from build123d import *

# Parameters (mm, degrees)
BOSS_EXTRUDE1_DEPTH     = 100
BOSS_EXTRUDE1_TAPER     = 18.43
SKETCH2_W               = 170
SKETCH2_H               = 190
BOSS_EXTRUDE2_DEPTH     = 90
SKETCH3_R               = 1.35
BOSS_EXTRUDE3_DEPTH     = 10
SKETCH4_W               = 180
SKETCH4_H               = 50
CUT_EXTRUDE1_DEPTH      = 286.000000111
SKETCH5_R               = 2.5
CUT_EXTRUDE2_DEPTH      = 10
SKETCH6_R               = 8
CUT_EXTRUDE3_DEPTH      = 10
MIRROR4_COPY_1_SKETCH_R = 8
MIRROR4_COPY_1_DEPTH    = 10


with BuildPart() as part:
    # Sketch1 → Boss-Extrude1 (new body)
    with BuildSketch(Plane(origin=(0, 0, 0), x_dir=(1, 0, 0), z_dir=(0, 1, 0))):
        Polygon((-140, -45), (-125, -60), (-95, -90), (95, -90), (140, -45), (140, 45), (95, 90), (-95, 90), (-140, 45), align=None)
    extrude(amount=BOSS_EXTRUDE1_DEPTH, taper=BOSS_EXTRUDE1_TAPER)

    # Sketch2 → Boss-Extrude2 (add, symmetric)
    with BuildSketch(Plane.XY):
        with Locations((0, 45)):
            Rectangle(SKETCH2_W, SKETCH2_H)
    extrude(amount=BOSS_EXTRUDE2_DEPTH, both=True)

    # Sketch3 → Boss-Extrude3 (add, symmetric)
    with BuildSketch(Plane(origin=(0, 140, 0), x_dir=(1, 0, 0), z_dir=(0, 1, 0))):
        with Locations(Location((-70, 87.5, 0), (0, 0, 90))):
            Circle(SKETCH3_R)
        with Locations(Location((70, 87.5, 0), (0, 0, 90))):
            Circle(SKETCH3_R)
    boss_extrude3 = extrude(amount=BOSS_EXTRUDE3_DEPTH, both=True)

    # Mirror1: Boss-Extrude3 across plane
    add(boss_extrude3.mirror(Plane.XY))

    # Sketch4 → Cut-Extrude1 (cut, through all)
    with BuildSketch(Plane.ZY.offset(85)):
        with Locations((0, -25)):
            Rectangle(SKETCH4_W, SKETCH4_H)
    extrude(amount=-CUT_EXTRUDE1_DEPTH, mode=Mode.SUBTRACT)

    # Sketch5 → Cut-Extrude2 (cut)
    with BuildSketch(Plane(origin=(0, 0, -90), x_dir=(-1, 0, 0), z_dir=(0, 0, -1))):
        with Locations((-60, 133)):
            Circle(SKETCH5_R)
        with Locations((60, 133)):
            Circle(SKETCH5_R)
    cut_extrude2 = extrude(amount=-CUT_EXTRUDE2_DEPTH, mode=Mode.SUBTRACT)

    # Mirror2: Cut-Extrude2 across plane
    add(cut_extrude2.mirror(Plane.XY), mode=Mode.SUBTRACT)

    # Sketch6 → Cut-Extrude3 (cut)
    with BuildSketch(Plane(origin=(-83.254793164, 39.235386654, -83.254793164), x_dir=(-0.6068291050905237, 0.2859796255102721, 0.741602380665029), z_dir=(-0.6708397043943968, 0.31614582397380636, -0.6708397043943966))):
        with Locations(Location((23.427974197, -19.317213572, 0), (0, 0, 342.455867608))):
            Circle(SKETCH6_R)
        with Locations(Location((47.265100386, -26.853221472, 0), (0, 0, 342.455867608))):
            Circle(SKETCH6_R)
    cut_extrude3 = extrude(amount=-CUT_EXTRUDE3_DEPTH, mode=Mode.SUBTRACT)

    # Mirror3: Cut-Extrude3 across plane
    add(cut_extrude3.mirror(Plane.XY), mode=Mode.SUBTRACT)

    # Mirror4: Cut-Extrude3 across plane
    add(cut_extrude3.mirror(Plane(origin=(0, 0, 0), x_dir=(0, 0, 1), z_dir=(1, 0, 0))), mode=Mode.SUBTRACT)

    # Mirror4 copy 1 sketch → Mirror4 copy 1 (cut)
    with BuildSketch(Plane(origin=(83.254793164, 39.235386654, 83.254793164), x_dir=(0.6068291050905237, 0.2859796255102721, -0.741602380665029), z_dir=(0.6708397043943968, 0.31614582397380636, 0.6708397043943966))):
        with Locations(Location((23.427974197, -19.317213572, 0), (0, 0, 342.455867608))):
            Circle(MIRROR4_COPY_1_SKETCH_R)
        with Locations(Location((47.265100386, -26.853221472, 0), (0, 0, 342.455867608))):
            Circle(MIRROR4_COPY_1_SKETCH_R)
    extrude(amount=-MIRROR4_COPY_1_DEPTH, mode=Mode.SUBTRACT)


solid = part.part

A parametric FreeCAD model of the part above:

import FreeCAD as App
import Part
import Sketcher

V = App.Vector


def add_polygon(sketch, points):
    """Adds a closed chain of lines whose ends are joined by coincident constraints."""
    first, n = sketch.GeometryCount, len(points)
    for a, b in zip(points, points[1:] + points[:1]):
        sketch.addGeometry(Part.LineSegment(App.Vector(*a, 0), App.Vector(*b, 0)), False)
    for i in range(n):
        sketch.addConstraint(Sketcher.Constraint("Coincident", first + i, 2, first + (i + 1) % n, 1))

doc = App.newDocument("Part")
body = doc.addObject("PartDesign::Body", "Body")

sketch1 = body.newObject("Sketcher::SketchObject", "Sketch")
sketch1.AttachmentSupport = (doc.getObject("XZ_Plane"), [""])
sketch1.MapMode = "FlatFace"
add_polygon(sketch1, [(-140, 45), (-95, 90), (95, 90), (140, 45), (140, -45), (95, -90), (-95, -90), (-140, -45)])
sketch1.addConstraint([
    Sketcher.Constraint("Horizontal", 1),
    Sketcher.Constraint("Vertical", 3),
    Sketcher.Constraint("Horizontal", 5),
    Sketcher.Constraint("Vertical", 7),
    Sketcher.Constraint("Symmetric", 0, 2, 4, 2, -1, 1),
    Sketcher.Constraint("Symmetric", 2, 2, 6, 2, -1, 1),
    Sketcher.Constraint("Perpendicular", 0, 2),
    Sketcher.Constraint("Perpendicular", 2, 4),
    Sketcher.Constraint("Perpendicular", 4, 6),
    Sketcher.Constraint("Horizontal", 3, 2, 6, 2),
    Sketcher.Constraint("Vertical", 1, 2, 4, 2),
    Sketcher.Constraint("DistanceX", 1, 1, 1, 2, 190.0),
    Sketcher.Constraint("DistanceY", 3, 2, 3, 1, 90.0),
    Sketcher.Constraint("DistanceY", -1, 1, 0, 2, 90.0),
])
pad1 = body.newObject("PartDesign::Pad", "Pad")
pad1.Profile = sketch1
pad1.Length = 100
pad1.Reversed = True
pad1.TaperAngle = -18.43

sketch2 = body.newObject("Sketcher::SketchObject", "Sketch001")
sketch2.AttachmentSupport = (doc.getObject("XY_Plane"), [""])
sketch2.MapMode = "FlatFace"
add_polygon(sketch2, [(-85, 140), (-85, -50), (85, -50), (85, 140)])
sketch2.addConstraint([
    Sketcher.Constraint("Vertical", 0),
    Sketcher.Constraint("Horizontal", 1),
    Sketcher.Constraint("Vertical", 2),
    Sketcher.Constraint("Horizontal", 3),
    Sketcher.Constraint("DistanceX", 1, 1, 1, 2, 170.0),
    Sketcher.Constraint("DistanceY", 0, 2, 0, 1, 190.0),
    Sketcher.Constraint("DistanceX", 0, 2, -1, 1, 85.0),
    Sketcher.Constraint("DistanceY", 0, 2, -1, 1, 50.0),
])
pad2 = body.newObject("PartDesign::Pad", "Pad001")
pad2.Profile = sketch2
pad2.Length = 180
pad2.Midplane = True

sketch3 = body.newObject("Sketcher::SketchObject", "Sketch002")
sketch3.AttachmentSupport = (doc.getObject("XZ_Plane"), [""])
sketch3.MapMode = "FlatFace"
sketch3.AttachmentOffset = App.Placement(V(0, 0, -140), App.Rotation())
sketch3.addGeometry([
    Part.Circle(V(-70, -87.5, 0), V(0, 0, 1), 1.4),
    Part.Circle(V(70, -87.5, 0), V(0, 0, 1), 1.4),
], False)
sketch3.addConstraint([
    Sketcher.Constraint("Equal", 0, 1),
    Sketcher.Constraint("Symmetric", 0, 3, 1, 3, -2),
    Sketcher.Constraint("Diameter", 0, 2.7),
    Sketcher.Constraint("DistanceX", 0, 3, -1, 1, 70.0),
    Sketcher.Constraint("DistanceY", 0, 3, -1, 1, 87.5),
])
pad3 = body.newObject("PartDesign::Pad", "Pad002")
pad3.Profile = sketch3
pad3.Length = 20
pad3.Midplane = True
doc.recompute()

mirrored = body.newObject("PartDesign::Mirrored", "Mirrored")
mirrored.Originals = [pad3]
mirrored.MirrorPlane = (doc.getObject("XY_Plane"), [""])
body.Tip = mirrored

sketch4 = body.newObject("Sketcher::SketchObject", "Sketch003")
sketch4.AttachmentSupport = (doc.getObject("YZ_Plane"), [""])
sketch4.MapMode = "FlatFace"
sketch4.AttachmentOffset = App.Placement(V(0, 0, -85), App.Rotation())
add_polygon(sketch4, [(0, -90), (-50, -90), (-50, 90), (0, 90)])
sketch4.addConstraint([
    Sketcher.Constraint("Horizontal", 0),
    Sketcher.Constraint("Vertical", 1),
    Sketcher.Constraint("Horizontal", 2),
    Sketcher.Constraint("Vertical", 3),
    Sketcher.Constraint("Symmetric", 2, 2, 3, 2, -1, 1),
    Sketcher.Constraint("DistanceX", 0, 2, 0, 1, 50.0),
    Sketcher.Constraint("DistanceY", 1, 1, 1, 2, 180.0),
])
pocket1 = body.newObject("PartDesign::Pocket", "Pocket")
pocket1.Profile = sketch4
pocket1.Type = "ThroughAll"
pocket1.Reversed = True

sketch5 = body.newObject("Sketcher::SketchObject", "Sketch004")
sketch5.AttachmentSupport = (doc.getObject("XY_Plane"), [""])
sketch5.MapMode = "FlatFace"
sketch5.AttachmentOffset = App.Placement(V(0, 0, -90), App.Rotation())
sketch5.addGeometry([
    Part.Circle(V(60, 133, 0), V(0, 0, 1), 2.5),
    Part.Circle(V(-60, 133, 0), V(0, 0, 1), 2.5),
], False)
sketch5.addConstraint([
    Sketcher.Constraint("Equal", 0, 1),
    Sketcher.Constraint("Symmetric", 0, 3, 1, 3, -2),
    Sketcher.Constraint("Diameter", 0, 5.0),
    Sketcher.Constraint("DistanceX", -1, 1, 0, 3, 60.0),
    Sketcher.Constraint("DistanceY", -1, 1, 0, 3, 133.0),
])
pocket2 = body.newObject("PartDesign::Pocket", "Pocket001")
pocket2.Profile = sketch5
pocket2.Length = 10
pocket2.Reversed = True
doc.recompute()

mirrored2 = body.newObject("PartDesign::Mirrored", "Mirrored001")
mirrored2.Originals = [pocket2]
mirrored2.MirrorPlane = (doc.getObject("XY_Plane"), [""])
body.Tip = mirrored2

sketch6 = body.newObject("Sketcher::SketchObject", "Sketch005")
sketch6.Placement = App.Placement(V(-83.254793, 39.235387, -83.254793), App.Rotation(V(-0.606829105, 0.285979626, 0.741602381), V(0.426300983, 0.904581379, 0), V(-0.670839704, 0.316145824, -0.670839704), "ZXY"))
sketch6.addGeometry([
    Part.Circle(V(23, -19, 0), V(0, 0, 1), 8),
    Part.Circle(V(47, -27, 0), V(0, 0, 1), 8),
], False)
sketch6.addConstraint([
    Sketcher.Constraint("Equal", 0, 1),
    Sketcher.Constraint("Diameter", 0, 16.0),
    Sketcher.Constraint("DistanceX", -1, 1, 1, 3, 47.2651),
    Sketcher.Constraint("DistanceY", 1, 3, -1, 1, 26.853221),
    Sketcher.Constraint("DistanceX", -1, 1, 0, 3, 23.427974),
    Sketcher.Constraint("DistanceY", 0, 3, -1, 1, 19.317214),
])
pocket3 = body.newObject("PartDesign::Pocket", "Pocket002")
pocket3.Profile = sketch6
pocket3.Length = 10
doc.recompute()

mirrored3 = body.newObject("PartDesign::Mirrored", "Mirrored002")
mirrored3.Originals = [pocket3]
mirrored3.MirrorPlane = (doc.getObject("XY_Plane"), [""])
body.Tip = mirrored3
doc.recompute()

mirrored4 = body.newObject("PartDesign::Mirrored", "Mirrored003")
mirrored4.Originals = [pocket3]
mirrored4.MirrorPlane = (doc.getObject("YZ_Plane"), [""])
body.Tip = mirrored4

sketch7 = body.newObject("Sketcher::SketchObject", "Sketch006")
sketch7.Placement = App.Placement(V(83.254793, 39.235387, 83.254793), App.Rotation(V(0.606829105, 0.285979626, -0.741602381), V(-0.426300983, 0.904581379, 0), V(0.670839704, 0.316145824, 0.670839704), "ZXY"))
sketch7.addGeometry([
    Part.Circle(V(23, -19, 0), V(0, 0, 1), 8),
    Part.Circle(V(47, -27, 0), V(0, 0, 1), 8),
], False)
sketch7.addConstraint([
    Sketcher.Constraint("Equal", 0, 1),
    Sketcher.Constraint("Diameter", 0, 16.0),
    Sketcher.Constraint("DistanceX", -1, 1, 1, 3, 47.2651),
    Sketcher.Constraint("DistanceY", 1, 3, -1, 1, 26.853221),
    Sketcher.Constraint("DistanceX", -1, 1, 0, 3, 23.427974),
    Sketcher.Constraint("DistanceY", 0, 3, -1, 1, 19.317214),
])
pocket4 = body.newObject("PartDesign::Pocket", "Pocket003")
pocket4.Profile = sketch7
pocket4.Length = 10

doc.recompute()
